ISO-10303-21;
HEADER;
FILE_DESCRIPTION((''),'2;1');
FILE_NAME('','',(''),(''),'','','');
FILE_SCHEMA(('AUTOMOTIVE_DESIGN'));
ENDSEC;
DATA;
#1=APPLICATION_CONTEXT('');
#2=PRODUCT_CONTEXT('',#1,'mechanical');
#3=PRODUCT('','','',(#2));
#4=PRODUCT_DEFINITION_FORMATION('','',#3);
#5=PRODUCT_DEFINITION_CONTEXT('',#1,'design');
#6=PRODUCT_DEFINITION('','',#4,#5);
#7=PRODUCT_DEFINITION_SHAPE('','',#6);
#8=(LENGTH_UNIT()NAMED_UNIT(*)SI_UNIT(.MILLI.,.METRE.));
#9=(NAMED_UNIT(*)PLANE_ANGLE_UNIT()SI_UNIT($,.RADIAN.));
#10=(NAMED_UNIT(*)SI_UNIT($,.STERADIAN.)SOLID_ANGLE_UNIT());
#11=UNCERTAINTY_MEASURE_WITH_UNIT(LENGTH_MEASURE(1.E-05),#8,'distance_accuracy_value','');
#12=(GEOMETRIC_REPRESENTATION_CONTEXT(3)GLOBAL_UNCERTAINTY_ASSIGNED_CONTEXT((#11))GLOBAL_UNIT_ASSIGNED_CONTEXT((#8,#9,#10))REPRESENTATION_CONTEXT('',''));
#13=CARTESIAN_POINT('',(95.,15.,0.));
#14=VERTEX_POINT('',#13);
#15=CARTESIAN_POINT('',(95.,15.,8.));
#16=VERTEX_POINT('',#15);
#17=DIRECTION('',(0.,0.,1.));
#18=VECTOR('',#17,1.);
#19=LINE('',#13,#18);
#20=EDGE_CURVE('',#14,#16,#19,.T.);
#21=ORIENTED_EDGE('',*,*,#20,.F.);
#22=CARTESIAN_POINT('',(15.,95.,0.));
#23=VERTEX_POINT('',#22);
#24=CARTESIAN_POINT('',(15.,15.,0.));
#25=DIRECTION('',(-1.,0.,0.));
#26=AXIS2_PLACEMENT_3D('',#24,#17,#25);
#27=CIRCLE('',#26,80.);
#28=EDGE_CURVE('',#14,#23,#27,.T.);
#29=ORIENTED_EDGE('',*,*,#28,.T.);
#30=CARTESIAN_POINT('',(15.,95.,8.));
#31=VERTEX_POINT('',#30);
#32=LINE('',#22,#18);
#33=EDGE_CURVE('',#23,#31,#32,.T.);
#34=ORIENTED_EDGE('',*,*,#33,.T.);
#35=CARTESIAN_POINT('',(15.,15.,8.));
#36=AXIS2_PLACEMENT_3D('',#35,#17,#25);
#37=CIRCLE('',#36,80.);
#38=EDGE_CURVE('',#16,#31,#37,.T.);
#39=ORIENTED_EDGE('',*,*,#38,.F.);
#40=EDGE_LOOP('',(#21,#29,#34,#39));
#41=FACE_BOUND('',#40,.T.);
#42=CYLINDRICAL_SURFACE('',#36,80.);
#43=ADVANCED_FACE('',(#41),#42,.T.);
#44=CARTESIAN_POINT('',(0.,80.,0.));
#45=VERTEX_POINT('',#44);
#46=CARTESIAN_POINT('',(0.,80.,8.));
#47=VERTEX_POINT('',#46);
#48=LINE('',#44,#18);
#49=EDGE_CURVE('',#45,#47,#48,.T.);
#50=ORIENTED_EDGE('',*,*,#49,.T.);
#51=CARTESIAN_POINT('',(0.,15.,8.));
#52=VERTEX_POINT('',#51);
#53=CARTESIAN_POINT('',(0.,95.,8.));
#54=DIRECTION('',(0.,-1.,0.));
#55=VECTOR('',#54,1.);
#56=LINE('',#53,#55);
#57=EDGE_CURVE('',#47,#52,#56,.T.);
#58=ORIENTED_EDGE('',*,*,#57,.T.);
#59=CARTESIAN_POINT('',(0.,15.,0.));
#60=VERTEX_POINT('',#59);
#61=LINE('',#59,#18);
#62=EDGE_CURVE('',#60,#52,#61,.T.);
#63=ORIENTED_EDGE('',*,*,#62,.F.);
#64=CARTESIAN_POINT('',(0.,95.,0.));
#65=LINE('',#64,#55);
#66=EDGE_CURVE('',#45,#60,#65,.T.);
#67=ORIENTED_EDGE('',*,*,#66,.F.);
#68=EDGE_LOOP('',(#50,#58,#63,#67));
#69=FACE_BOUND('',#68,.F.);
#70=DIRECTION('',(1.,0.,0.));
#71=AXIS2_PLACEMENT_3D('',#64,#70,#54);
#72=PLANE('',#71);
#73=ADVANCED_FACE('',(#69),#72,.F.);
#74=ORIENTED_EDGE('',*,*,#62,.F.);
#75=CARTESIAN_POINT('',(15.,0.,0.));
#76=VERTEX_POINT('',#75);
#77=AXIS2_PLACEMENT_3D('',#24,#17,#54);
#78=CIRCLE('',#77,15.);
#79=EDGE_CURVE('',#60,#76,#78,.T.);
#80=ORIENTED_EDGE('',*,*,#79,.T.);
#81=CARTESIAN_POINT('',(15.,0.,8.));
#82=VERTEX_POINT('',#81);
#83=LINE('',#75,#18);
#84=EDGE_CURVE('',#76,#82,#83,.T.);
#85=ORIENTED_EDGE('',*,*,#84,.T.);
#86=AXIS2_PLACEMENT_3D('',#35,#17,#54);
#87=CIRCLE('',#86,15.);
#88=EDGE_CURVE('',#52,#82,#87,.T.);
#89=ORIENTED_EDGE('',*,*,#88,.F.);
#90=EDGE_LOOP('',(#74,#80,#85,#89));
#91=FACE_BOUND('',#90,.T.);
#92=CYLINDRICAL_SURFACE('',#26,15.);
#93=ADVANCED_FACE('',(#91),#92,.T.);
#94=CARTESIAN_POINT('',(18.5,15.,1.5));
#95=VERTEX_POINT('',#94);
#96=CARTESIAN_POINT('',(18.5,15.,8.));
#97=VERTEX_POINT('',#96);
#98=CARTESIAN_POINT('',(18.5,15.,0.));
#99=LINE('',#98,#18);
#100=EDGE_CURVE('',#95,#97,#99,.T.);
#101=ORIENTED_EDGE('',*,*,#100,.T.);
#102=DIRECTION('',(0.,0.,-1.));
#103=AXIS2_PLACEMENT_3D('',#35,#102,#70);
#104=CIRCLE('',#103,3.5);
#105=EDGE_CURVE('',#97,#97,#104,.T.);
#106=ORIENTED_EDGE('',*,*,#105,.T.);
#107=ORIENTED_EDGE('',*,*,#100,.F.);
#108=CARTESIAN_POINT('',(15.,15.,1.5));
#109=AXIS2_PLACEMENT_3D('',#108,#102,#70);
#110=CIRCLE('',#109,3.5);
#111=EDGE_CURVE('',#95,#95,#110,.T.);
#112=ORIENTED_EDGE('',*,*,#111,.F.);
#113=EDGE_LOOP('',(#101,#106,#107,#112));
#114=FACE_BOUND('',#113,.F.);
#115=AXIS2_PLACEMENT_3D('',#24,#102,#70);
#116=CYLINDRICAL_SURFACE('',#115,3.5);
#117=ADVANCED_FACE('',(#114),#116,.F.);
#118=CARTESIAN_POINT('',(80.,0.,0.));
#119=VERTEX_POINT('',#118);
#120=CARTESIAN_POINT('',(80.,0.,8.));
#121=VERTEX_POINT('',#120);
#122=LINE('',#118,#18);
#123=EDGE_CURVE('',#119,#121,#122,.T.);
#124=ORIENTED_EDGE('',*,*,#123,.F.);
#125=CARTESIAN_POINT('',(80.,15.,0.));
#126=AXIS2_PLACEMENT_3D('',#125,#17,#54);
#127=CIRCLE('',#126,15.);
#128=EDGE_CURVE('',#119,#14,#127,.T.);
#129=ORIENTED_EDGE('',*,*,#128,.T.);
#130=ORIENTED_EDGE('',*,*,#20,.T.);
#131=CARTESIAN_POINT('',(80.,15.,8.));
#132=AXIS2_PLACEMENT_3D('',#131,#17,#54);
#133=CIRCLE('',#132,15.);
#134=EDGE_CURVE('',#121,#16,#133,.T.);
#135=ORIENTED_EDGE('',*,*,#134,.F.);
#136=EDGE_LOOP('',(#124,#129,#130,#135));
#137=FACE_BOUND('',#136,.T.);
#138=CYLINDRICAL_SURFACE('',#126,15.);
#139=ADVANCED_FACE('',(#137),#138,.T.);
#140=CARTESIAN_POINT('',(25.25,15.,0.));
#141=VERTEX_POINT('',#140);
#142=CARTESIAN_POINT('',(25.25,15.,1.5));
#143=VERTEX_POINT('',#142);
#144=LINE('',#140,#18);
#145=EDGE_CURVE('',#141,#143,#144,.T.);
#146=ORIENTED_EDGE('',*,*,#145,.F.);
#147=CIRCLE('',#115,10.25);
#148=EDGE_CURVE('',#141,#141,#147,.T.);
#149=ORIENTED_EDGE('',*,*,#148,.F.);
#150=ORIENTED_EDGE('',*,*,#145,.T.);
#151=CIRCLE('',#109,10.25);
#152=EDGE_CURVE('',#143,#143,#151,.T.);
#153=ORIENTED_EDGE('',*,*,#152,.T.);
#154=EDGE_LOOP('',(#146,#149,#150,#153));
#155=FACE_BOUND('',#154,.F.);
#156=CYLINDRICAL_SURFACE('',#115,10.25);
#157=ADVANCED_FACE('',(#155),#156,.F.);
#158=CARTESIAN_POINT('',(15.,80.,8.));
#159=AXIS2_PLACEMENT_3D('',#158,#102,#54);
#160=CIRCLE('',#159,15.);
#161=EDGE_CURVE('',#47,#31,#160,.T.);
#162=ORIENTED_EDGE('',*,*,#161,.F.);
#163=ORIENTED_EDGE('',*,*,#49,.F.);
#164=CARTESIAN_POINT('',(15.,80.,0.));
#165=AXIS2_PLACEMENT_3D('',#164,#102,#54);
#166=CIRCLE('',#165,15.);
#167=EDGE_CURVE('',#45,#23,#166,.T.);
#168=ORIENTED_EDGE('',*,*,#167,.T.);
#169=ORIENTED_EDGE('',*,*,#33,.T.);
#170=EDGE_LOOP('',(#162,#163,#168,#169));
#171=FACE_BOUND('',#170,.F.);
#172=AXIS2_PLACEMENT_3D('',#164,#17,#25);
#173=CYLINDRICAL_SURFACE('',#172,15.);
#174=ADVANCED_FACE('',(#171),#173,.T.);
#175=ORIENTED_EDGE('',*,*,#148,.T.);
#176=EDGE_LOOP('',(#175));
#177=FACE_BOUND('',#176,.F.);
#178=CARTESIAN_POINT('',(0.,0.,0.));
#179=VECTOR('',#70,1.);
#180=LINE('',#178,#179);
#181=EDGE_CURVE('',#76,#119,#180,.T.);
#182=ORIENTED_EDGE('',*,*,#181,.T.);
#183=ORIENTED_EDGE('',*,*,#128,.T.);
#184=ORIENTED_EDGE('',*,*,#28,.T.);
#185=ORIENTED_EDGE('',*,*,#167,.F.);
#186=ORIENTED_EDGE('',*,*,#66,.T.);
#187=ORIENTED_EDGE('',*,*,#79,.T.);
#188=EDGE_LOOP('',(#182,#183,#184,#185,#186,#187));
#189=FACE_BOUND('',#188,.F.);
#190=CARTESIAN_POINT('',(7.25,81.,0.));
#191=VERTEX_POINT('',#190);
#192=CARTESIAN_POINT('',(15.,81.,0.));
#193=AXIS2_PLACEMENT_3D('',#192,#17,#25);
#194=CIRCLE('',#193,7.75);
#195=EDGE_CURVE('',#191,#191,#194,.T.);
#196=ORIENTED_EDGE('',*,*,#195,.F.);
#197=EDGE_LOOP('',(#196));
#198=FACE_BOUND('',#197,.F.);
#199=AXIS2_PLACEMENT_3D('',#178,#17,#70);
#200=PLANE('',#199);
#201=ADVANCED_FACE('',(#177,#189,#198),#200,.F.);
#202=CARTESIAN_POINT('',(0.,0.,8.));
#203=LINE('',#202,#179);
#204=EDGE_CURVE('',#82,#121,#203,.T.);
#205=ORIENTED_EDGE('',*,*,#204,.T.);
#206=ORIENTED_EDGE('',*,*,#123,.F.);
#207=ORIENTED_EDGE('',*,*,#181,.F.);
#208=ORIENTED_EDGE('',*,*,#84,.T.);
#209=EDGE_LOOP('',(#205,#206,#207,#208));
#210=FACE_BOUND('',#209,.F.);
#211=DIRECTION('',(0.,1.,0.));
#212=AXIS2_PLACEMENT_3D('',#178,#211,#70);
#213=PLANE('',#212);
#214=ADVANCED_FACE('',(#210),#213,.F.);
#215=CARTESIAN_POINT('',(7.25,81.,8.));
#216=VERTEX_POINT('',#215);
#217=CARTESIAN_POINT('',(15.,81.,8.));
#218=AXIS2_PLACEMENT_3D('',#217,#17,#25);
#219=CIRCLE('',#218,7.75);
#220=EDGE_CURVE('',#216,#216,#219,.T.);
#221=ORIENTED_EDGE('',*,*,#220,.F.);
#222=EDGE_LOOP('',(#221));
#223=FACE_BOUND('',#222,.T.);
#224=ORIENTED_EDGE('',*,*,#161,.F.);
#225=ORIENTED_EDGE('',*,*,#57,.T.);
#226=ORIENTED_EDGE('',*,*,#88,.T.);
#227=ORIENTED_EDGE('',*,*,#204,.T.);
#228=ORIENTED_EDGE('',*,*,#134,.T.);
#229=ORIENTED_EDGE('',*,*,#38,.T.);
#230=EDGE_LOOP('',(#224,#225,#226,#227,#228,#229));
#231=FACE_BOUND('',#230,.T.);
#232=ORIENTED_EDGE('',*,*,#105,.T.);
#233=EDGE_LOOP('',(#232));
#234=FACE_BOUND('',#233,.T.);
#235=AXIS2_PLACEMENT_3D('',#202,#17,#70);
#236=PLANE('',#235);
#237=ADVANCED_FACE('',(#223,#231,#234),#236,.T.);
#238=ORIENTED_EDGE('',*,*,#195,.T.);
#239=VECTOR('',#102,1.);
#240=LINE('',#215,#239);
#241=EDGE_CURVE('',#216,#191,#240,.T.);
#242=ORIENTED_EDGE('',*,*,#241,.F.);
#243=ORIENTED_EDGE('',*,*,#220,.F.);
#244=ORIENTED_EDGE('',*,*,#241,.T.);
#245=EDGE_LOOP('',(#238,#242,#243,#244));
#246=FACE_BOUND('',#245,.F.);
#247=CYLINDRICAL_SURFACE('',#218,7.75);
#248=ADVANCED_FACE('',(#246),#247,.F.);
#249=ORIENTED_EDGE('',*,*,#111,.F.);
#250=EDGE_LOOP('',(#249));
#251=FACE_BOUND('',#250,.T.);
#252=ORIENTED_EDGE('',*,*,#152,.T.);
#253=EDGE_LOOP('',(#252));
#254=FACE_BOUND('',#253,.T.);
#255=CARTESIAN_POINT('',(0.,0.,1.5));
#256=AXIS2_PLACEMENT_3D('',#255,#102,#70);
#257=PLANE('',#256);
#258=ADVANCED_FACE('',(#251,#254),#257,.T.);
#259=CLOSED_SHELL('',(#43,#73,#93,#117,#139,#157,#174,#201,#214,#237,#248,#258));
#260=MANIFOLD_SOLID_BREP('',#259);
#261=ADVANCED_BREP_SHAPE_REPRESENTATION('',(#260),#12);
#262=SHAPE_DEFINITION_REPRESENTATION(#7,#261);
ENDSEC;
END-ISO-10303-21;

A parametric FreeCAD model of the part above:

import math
import FreeCAD as App
import Part
import Sketcher

V = App.Vector


def edges_at(feature, points):
    """Names of the edges that pass closest to the given points."""
    edges = feature.Shape.Edges
    near = lambda p: min(range(len(edges)), key=lambda i: edges[i].distToShape(Part.Vertex(*p))[0])
    return sorted({f"Edge{near(p) + 1}" for p in points})

doc = App.newDocument("Part")
body = doc.addObject("PartDesign::Body", "Body")

sketch1 = doc.addObject("Sketcher::SketchObject", "Sketch")
body.addObject(sketch1)
sketch1.AttachmentSupport = (doc.XY_Plane, [""])
sketch1.MapMode = "FlatFace"
sketch1.addGeometry(Part.LineSegment(V(0, 95, 0), V(0, 0, 0)), False)
sketch1.addGeometry(Part.LineSegment(V(0, 0, 0), V(95, 0, 0)), False)
sketch1.addGeometry(Part.LineSegment(V(95, 0, 0), V(95, 95, 0)), False)
sketch1.addGeometry(Part.LineSegment(V(95, 95, 0), V(0, 95, 0)), False)
sketch1.addConstraint(Sketcher.Constraint("Coincident", 0, 2, 1, 1))
sketch1.addConstraint(Sketcher.Constraint("Coincident", 1, 2, 2, 1))
sketch1.addConstraint(Sketcher.Constraint("Coincident", 2, 2, 3, 1))
sketch1.addConstraint(Sketcher.Constraint("Coincident", 3, 2, 0, 1))
sketch1.addConstraint(Sketcher.Constraint("Vertical", 0))
sketch1.addConstraint(Sketcher.Constraint("Horizontal", 1))
sketch1.addConstraint(Sketcher.Constraint("Vertical", 2))
sketch1.addConstraint(Sketcher.Constraint("Horizontal", 3))
sketch1.addConstraint(Sketcher.Constraint("Coincident", 0, 2, -1, 1))
sketch1.addConstraint(Sketcher.Constraint("Equal", 3, 0))
sketch1.addConstraint(Sketcher.Constraint("DistanceX", 1, 1, 1, 2, 95.0))
pad1 = doc.addObject("PartDesign::Pad", "Pad")
body.addObject(pad1)
pad1.Profile = sketch1
pad1.Length = 8

sketch2 = doc.addObject("Sketcher::SketchObject", "Sketch001")
body.addObject(sketch2)
sketch2.AttachmentSupport = (doc.XY_Plane, [""])
sketch2.MapMode = "FlatFace"
sketch2.AttachmentOffset = App.Placement(V(0, 0, 8), App.Rotation())
sketch2.addGeometry(Part.Circle(V(15, 81, 0), V(0, 0, 1), 7.75), False)
sketch2.addConstraint(Sketcher.Constraint("Diameter", 0, 15.5))
sketch2.addConstraint(Sketcher.Constraint("DistanceX", -1, 1, 0, 3, 15.0))
sketch2.addConstraint(Sketcher.Constraint("DistanceY", -1, 1, 0, 3, 81.0))
pocket1 = doc.addObject("PartDesign::Pocket", "Pocket")
body.addObject(pocket1)
pocket1.Profile = sketch2
pocket1.Length = 8
doc.recompute()

fillet = doc.addObject("PartDesign::Fillet", "Fillet")
body.addObject(fillet)
fillet.Base = (pocket1, edges_at(pocket1, [(95, 95, 4), (0, 95, 4)]))
fillet.Radius = 15
doc.recompute()

fillet2 = doc.addObject("PartDesign::Fillet", "Fillet001")
body.addObject(fillet2)
fillet2.Base = (fillet, edges_at(fillet, [(0, 0, 4), (95, 0, 4)]))
fillet2.Radius = 15

sketch3 = doc.addObject("Sketcher::SketchObject", "Sketch002")
body.addObject(sketch3)
sketch3.AttachmentSupport = (doc.XY_Plane, [""])
sketch3.MapMode = "FlatFace"
sketch3.AttachmentOffset = App.Placement(V(0, 0, 8), App.Rotation())
sketch3.addGeometry(Part.ArcOfCircle(Part.Circle(V(15, 15, 0), V(0, 0, 1), 80), math.radians(0), math.radians(90)), False)
sketch3.addGeometry(Part.LineSegment(V(95, 15, 0), V(95, 80, 0)), False)
sketch3.addGeometry(Part.ArcOfCircle(Part.Circle(V(80, 80, 0), V(0, 0, 1), 15), math.radians(0), math.radians(90)), False)
sketch3.addGeometry(Part.LineSegment(V(80, 95, 0), V(15, 95, 0)), False)
sketch3.addConstraint(Sketcher.Constraint("Tangent", 0, 1, 1, 1))
sketch3.addConstraint(Sketcher.Constraint("Tangent", 1, 2, 2, 1))
sketch3.addConstraint(Sketcher.Constraint("Tangent", 2, 2, 3, 1))
sketch3.addConstraint(Sketcher.Constraint("Tangent", 3, 2, 0, 2))
sketch3.addConstraint(Sketcher.Constraint("Vertical", 1))
sketch3.addConstraint(Sketcher.Constraint("Horizontal", 3))
sketch3.addConstraint(Sketcher.Constraint("Radius", 0, 80.0))
sketch3.addConstraint(Sketcher.Constraint("Radius", 2, 15.0))
sketch3.addConstraint(Sketcher.Constraint("DistanceX", -1, 1, 0, 3, 15.0))
sketch3.addConstraint(Sketcher.Constraint("DistanceY", -1, 1, 0, 3, 15.0))
pocket2 = doc.addObject("PartDesign::Pocket", "Pocket001")
body.addObject(pocket2)
pocket2.Profile = sketch3
pocket2.Length = 8

sketch4 = doc.addObject("Sketcher::SketchObject", "Sketch003")
body.addObject(sketch4)
sketch4.AttachmentSupport = (doc.XY_Plane, [""])
sketch4.MapMode = "FlatFace"
sketch4.addGeometry(Part.Circle(V(15, 15, 0), V(0, 0, 1), 10.25), False)
sketch4.addConstraint(Sketcher.Constraint("Diameter", 0, 20.5))
sketch4.addConstraint(Sketcher.Constraint("DistanceX", -1, 1, 0, 3, 15.0))
sketch4.addConstraint(Sketcher.Constraint("DistanceY", -1, 1, 0, 3, 15.0))
pocket3 = doc.addObject("PartDesign::Pocket", "Pocket002")
body.addObject(pocket3)
pocket3.Profile = sketch4
pocket3.Length = 1.5
pocket3.Reversed = True

sketch5 = doc.addObject("Sketcher::SketchObject", "Sketch004")
body.addObject(sketch5)
sketch5.AttachmentSupport = (doc.XY_Plane, [""])
sketch5.MapMode = "FlatFace"
sketch5.addGeometry(Part.Circle(V(15, 15, 0), V(0, 0, 1), 3.5), False)
sketch5.addConstraint(Sketcher.Constraint("Diameter", 0, 7.0))
sketch5.addConstraint(Sketcher.Constraint("DistanceX", -1, 1, 0, 3, 15.0))
sketch5.addConstraint(Sketcher.Constraint("DistanceY", -1, 1, 0, 3, 15.0))
pocket4 = doc.addObject("PartDesign::Pocket", "Pocket003")
body.addObject(pocket4)
pocket4.Profile = sketch5
pocket4.Length = 8
pocket4.Reversed = True

doc.recompute()
